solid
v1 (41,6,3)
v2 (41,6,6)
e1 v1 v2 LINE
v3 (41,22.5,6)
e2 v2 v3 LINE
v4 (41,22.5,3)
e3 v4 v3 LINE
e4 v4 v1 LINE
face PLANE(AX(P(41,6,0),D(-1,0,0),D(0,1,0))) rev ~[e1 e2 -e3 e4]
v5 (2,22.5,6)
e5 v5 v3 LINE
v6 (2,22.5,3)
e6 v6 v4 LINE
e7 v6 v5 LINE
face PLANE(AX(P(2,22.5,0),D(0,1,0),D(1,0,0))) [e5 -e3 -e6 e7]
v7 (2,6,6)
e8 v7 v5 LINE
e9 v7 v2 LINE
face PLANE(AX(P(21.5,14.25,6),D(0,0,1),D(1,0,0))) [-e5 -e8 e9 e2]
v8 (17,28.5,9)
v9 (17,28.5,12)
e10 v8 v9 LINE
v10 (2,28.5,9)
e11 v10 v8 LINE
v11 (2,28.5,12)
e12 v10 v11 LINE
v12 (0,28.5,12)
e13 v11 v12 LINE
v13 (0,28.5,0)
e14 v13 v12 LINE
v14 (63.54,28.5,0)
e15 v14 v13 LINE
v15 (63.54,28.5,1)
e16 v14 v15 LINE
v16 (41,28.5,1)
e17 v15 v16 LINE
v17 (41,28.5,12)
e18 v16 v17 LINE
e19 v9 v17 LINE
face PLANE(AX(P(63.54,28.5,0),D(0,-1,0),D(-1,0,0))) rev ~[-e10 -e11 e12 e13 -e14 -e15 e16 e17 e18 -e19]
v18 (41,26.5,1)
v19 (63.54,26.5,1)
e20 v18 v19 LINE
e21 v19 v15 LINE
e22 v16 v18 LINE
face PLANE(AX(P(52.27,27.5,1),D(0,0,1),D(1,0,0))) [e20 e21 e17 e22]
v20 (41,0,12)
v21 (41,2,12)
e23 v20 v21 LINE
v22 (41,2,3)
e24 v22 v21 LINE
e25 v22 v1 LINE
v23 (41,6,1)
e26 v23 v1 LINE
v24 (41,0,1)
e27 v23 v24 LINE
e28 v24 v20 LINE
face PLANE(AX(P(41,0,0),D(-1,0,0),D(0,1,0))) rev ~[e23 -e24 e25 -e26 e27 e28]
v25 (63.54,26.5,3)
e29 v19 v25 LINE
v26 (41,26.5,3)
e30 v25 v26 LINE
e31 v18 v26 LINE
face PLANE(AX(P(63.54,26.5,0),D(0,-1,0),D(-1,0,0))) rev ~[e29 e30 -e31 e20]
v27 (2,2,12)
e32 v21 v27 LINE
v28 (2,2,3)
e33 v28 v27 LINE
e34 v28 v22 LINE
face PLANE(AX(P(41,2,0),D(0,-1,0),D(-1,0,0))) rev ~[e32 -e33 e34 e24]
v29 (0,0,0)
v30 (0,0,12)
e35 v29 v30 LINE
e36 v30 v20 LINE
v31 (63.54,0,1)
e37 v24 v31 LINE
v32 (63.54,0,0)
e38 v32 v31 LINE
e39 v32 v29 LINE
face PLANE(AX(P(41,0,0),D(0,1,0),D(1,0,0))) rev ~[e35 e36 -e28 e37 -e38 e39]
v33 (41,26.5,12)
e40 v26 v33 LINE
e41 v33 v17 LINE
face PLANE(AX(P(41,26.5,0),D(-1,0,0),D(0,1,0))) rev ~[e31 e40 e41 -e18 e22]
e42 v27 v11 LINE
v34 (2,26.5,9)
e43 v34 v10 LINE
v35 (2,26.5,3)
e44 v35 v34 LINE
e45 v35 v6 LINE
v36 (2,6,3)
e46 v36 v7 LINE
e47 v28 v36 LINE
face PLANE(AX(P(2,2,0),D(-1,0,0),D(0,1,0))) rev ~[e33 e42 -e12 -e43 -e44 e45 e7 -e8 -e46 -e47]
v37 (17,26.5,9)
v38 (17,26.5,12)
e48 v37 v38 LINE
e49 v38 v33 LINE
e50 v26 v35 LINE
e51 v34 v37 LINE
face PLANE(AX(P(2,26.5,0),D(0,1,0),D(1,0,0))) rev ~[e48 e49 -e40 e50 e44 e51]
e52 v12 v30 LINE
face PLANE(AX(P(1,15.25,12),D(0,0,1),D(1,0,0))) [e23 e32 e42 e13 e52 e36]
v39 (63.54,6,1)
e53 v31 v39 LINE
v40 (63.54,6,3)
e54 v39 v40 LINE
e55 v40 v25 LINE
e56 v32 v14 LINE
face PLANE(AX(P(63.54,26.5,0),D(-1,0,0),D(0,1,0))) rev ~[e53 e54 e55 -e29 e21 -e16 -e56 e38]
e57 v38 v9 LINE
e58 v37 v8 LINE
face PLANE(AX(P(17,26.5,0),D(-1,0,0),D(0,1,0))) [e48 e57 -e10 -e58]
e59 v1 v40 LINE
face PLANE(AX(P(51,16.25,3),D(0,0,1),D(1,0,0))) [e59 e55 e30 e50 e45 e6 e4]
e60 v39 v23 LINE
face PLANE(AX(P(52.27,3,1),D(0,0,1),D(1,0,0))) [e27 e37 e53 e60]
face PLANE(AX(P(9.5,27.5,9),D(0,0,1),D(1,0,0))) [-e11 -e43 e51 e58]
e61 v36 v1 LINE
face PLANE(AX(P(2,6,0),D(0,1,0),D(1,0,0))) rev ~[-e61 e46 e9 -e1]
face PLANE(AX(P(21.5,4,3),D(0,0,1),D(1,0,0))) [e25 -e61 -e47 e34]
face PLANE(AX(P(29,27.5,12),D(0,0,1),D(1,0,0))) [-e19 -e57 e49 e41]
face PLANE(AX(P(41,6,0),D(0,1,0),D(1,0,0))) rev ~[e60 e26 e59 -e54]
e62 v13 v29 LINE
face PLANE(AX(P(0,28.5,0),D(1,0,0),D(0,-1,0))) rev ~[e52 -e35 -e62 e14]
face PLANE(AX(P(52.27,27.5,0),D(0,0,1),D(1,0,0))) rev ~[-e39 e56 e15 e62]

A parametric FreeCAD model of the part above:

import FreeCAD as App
import Part
import Sketcher
from FreeCAD import Vector


def add_polygon(sketch, points):
    """Adds a closed chain of lines whose ends are joined by coincident constraints."""
    first, n = sketch.GeometryCount, len(points)
    for a, b in zip(points, points[1:] + points[:1]):
        sketch.addGeometry(Part.LineSegment(App.Vector(*a, 0), App.Vector(*b, 0)), False)
    for i in range(n):
        sketch.addConstraint(Sketcher.Constraint("Coincident", first + i, 2, first + (i + 1) % n, 1))

doc = App.newDocument("Part")
body = doc.addObject("PartDesign::Body", "Body")
body.AllowCompound = True

# Sketch on XY plane
sketch1 = body.newObject("Sketcher::SketchObject", "Sketch")
sketch1.AttachmentSupport = (doc.getObject("XY_Plane"), [""])
sketch1.MapMode = "FlatFace"
add_polygon(sketch1, [(2, 26.5), (2, 22.5), (41, 22.5), (41, 6), (63.5, 6), (63.5, 26.5)])  # lines 0-5
add_polygon(sketch1, [(2, 6), (2, 2), (41, 2), (41, 6)])  # lines 6-9
sketch1.addConstraint(Sketcher.Constraint("Vertical", 0))
sketch1.addConstraint(Sketcher.Constraint("Horizontal", 1))
sketch1.addConstraint(Sketcher.Constraint("Vertical", 2))
sketch1.addConstraint(Sketcher.Constraint("Horizontal", 3))
sketch1.addConstraint(Sketcher.Constraint("Vertical", 4))
sketch1.addConstraint(Sketcher.Constraint("Horizontal", 5))
sketch1.addConstraint(Sketcher.Constraint("Vertical", 6))
sketch1.addConstraint(Sketcher.Constraint("Horizontal", 7))
sketch1.addConstraint(Sketcher.Constraint("Vertical", 8))
sketch1.addConstraint(Sketcher.Constraint("Horizontal", 9))
sketch1.addConstraint(Sketcher.Constraint("Coincident", 8, 2, 2, 2))
sketch1.addConstraint(Sketcher.Constraint("Vertical", 5, 2, 6, 2))
sketch1.addConstraint(Sketcher.Constraint("Equal", 0, 6))
sketch1.addConstraint(Sketcher.Constraint("DistanceX", 1, 1, 1, 2, 39.0))
sketch1.addConstraint(Sketcher.Constraint("DistanceY", 0, 2, 0, 1, 4.0))
sketch1.addConstraint(Sketcher.Constraint("DistanceY", 2, 2, 2, 1, 16.5))
sketch1.addConstraint(Sketcher.Constraint("DistanceX", -1, 1, 0, 2, 2.0))
sketch1.addConstraint(Sketcher.Constraint("DistanceY", -1, 1, 2, 2, 6.0))
sketch1.addConstraint(Sketcher.Constraint("DistanceX", 3, 1, 3, 2, 22.54))
pad1 = body.newObject("PartDesign::Pad", "Pad")
pad1.Profile = sketch1
pad1.Length = 3

# Sketch on XY plane
sketch2 = body.newObject("Sketcher::SketchObject", "Sketch001")
sketch2.AttachmentSupport = (doc.getObject("XY_Plane"), [""])
sketch2.MapMode = "FlatFace"
add_polygon(sketch2, [(2, 28.5), (2, 26.5), (17, 26.5), (17, 28.5)])  # lines 0-3
sketch2.addConstraint(Sketcher.Constraint("Vertical", 0))
sketch2.addConstraint(Sketcher.Constraint("Horizontal", 1))
sketch2.addConstraint(Sketcher.Constraint("Vertical", 2))
sketch2.addConstraint(Sketcher.Constraint("Horizontal", 3))
sketch2.addConstraint(Sketcher.Constraint("DistanceX", 1, 1, 1, 2, 15.0))
sketch2.addConstraint(Sketcher.Constraint("DistanceY", 0, 2, 0, 1, 2.0))
sketch2.addConstraint(Sketcher.Constraint("DistanceX", -1, 1, 0, 2, 2.0))
sketch2.addConstraint(Sketcher.Constraint("DistanceY", -1, 1, 0, 2, 26.5))
pad2 = body.newObject("PartDesign::Pad", "Pad001")
pad2.Profile = sketch2
pad2.Length = 9
body2 = doc.addObject("PartDesign::Body", "Body001")

# Sketch on XY plane
sketch3 = body2.newObject("Sketcher::SketchObject", "Sketch002")
sketch3.AttachmentSupport = (doc.getObject("XY_Plane001"), [""])
sketch3.MapMode = "FlatFace"
add_polygon(sketch3, [(2, 22), (2, 6), (41, 6), (41, 22)])  # lines 0-3
sketch3.addConstraint(Sketcher.Constraint("Vertical", 0))
sketch3.addConstraint(Sketcher.Constraint("Horizontal", 1))
sketch3.addConstraint(Sketcher.Constraint("Vertical", 2))
sketch3.addConstraint(Sketcher.Constraint("Horizontal", 3))
sketch3.addConstraint(Sketcher.Constraint("DistanceX", 1, 1, 1, 2, 39.0))
sketch3.addConstraint(Sketcher.Constraint("DistanceY", 0, 2, 0, 1, 16.5))
sketch3.addConstraint(Sketcher.Constraint("DistanceX", -1, 1, 0, 2, 2.0))
sketch3.addConstraint(Sketcher.Constraint("DistanceY", -1, 1, 0, 2, 6.0))
pad3 = body2.newObject("PartDesign::Pad", "Pad002")
pad3.Profile = sketch3
pad3.Length = 6
body3 = doc.addObject("PartDesign::Body", "Body002")
body3.AllowCompound = True

# Sketch on XY plane
sketch4 = body3.newObject("Sketcher::SketchObject", "Sketch003")
sketch4.AttachmentSupport = (doc.getObject("XY_Plane002"), [""])
sketch4.MapMode = "FlatFace"
add_polygon(sketch4, [(17, 28.5), (17, 26.5), (41, 26.5), (41, 28.5)])  # lines 0-3
add_polygon(sketch4, [(2, 28.5), (0, 28.5), (0, 0), (41, 0), (41, 2), (2, 2)])  # lines 4-9
sketch4.addConstraint(Sketcher.Constraint("Vertical", 0))
sketch4.addConstraint(Sketcher.Constraint("Horizontal", 1))
sketch4.addConstraint(Sketcher.Constraint("Vertical", 2))
sketch4.addConstraint(Sketcher.Constraint("Horizontal", 3))
sketch4.addConstraint(Sketcher.Constraint("Horizontal", 4))
sketch4.addConstraint(Sketcher.Constraint("Vertical", 5))
sketch4.addConstraint(Sketcher.Constraint("Horizontal", 6))
sketch4.addConstraint(Sketcher.Constraint("Vertical", 7))
sketch4.addConstraint(Sketcher.Constraint("Horizontal", 8))
sketch4.addConstraint(Sketcher.Constraint("Vertical", 9))
sketch4.addConstraint(Sketcher.Constraint("Coincident", 5, 2, -1, 1))
sketch4.addConstraint(Sketcher.Constraint("Horizontal", 3, 2, 4, 2))
sketch4.addConstraint(Sketcher.Constraint("Vertical", 2, 2, 6, 2))
sketch4.addConstraint(Sketcher.Constraint("Equal", 4, 0))
sketch4.addConstraint(Sketcher.Constraint("Equal", 2, 7))
sketch4.addConstraint(Sketcher.Constraint("DistanceX", 1, 1, 1, 2, 24.0))
sketch4.addConstraint(Sketcher.Constraint("DistanceX", 4, 2, 4, 1, 2.0))
sketch4.addConstraint(Sketcher.Constraint("DistanceX", 6, 1, 6, 2, 41.0))
sketch4.addConstraint(Sketcher.Constraint("DistanceY", 5, 2, 5, 1, 28.5))
pad4 = body3.newObject("PartDesign::Pad", "Pad003")
pad4.Profile = sketch4
pad4.Length = 12
doc.recompute()

boolean = body.newObject("PartDesign::Boolean", "Boolean")
boolean.Type = "Fuse"
boolean.addObjects([body2])
doc.recompute()

boolean2 = body.newObject("PartDesign::Boolean", "Boolean001")
boolean2.Type = "Fuse"
boolean2.addObjects([body3])

# Sketch on XY plane
sketch5 = body.newObject("Sketcher::SketchObject", "Sketch004")
sketch5.AttachmentSupport = (doc.getObject("XY_Plane"), [""])
sketch5.MapMode = "FlatFace"
add_polygon(sketch5, [(41, 28.5), (41, 26.5), (63.5, 26.5), (63.5, 28.5)])  # lines 0-3
add_polygon(sketch5, [(41, 6), (41, 0), (63.5, 0), (63.5, 6)])  # lines 4-7
sketch5.addConstraint(Sketcher.Constraint("Vertical", 0))
sketch5.addConstraint(Sketcher.Constraint("Horizontal", 1))
sketch5.addConstraint(Sketcher.Constraint("Vertical", 2))
sketch5.addConstraint(Sketcher.Constraint("Horizontal", 3))
sketch5.addConstraint(Sketcher.Constraint("Vertical", 4))
sketch5.addConstraint(Sketcher.Constraint("Horizontal", 5))
sketch5.addConstraint(Sketcher.Constraint("Vertical", 6))
sketch5.addConstraint(Sketcher.Constraint("Horizontal", 7))
sketch5.addConstraint(Sketcher.Constraint("PointOnObject", 4, 2, -1))
sketch5.addConstraint(Sketcher.Constraint("Vertical", 3, 2, 4, 2))
sketch5.addConstraint(Sketcher.Constraint("Vertical", 2, 2, 5, 2))
sketch5.addConstraint(Sketcher.Constraint("DistanceY", 0, 2, 0, 1, 2.0))
sketch5.addConstraint(Sketcher.Constraint("DistanceY", 4, 2, 4, 1, 6.0))
sketch5.addConstraint(Sketcher.Constraint("DistanceX", -1, 1, 0, 2, 41.0))
sketch5.addConstraint(Sketcher.Constraint("DistanceX", 1, 1, 1, 2, 22.54))
sketch5.addConstraint(Sketcher.Constraint("DistanceY", -1, 1, 0, 2, 26.5))
pad5 = body.newObject("PartDesign::Pad", "Pad004")
pad5.Profile = sketch5
pad5.Length = 1

doc.recompute()
